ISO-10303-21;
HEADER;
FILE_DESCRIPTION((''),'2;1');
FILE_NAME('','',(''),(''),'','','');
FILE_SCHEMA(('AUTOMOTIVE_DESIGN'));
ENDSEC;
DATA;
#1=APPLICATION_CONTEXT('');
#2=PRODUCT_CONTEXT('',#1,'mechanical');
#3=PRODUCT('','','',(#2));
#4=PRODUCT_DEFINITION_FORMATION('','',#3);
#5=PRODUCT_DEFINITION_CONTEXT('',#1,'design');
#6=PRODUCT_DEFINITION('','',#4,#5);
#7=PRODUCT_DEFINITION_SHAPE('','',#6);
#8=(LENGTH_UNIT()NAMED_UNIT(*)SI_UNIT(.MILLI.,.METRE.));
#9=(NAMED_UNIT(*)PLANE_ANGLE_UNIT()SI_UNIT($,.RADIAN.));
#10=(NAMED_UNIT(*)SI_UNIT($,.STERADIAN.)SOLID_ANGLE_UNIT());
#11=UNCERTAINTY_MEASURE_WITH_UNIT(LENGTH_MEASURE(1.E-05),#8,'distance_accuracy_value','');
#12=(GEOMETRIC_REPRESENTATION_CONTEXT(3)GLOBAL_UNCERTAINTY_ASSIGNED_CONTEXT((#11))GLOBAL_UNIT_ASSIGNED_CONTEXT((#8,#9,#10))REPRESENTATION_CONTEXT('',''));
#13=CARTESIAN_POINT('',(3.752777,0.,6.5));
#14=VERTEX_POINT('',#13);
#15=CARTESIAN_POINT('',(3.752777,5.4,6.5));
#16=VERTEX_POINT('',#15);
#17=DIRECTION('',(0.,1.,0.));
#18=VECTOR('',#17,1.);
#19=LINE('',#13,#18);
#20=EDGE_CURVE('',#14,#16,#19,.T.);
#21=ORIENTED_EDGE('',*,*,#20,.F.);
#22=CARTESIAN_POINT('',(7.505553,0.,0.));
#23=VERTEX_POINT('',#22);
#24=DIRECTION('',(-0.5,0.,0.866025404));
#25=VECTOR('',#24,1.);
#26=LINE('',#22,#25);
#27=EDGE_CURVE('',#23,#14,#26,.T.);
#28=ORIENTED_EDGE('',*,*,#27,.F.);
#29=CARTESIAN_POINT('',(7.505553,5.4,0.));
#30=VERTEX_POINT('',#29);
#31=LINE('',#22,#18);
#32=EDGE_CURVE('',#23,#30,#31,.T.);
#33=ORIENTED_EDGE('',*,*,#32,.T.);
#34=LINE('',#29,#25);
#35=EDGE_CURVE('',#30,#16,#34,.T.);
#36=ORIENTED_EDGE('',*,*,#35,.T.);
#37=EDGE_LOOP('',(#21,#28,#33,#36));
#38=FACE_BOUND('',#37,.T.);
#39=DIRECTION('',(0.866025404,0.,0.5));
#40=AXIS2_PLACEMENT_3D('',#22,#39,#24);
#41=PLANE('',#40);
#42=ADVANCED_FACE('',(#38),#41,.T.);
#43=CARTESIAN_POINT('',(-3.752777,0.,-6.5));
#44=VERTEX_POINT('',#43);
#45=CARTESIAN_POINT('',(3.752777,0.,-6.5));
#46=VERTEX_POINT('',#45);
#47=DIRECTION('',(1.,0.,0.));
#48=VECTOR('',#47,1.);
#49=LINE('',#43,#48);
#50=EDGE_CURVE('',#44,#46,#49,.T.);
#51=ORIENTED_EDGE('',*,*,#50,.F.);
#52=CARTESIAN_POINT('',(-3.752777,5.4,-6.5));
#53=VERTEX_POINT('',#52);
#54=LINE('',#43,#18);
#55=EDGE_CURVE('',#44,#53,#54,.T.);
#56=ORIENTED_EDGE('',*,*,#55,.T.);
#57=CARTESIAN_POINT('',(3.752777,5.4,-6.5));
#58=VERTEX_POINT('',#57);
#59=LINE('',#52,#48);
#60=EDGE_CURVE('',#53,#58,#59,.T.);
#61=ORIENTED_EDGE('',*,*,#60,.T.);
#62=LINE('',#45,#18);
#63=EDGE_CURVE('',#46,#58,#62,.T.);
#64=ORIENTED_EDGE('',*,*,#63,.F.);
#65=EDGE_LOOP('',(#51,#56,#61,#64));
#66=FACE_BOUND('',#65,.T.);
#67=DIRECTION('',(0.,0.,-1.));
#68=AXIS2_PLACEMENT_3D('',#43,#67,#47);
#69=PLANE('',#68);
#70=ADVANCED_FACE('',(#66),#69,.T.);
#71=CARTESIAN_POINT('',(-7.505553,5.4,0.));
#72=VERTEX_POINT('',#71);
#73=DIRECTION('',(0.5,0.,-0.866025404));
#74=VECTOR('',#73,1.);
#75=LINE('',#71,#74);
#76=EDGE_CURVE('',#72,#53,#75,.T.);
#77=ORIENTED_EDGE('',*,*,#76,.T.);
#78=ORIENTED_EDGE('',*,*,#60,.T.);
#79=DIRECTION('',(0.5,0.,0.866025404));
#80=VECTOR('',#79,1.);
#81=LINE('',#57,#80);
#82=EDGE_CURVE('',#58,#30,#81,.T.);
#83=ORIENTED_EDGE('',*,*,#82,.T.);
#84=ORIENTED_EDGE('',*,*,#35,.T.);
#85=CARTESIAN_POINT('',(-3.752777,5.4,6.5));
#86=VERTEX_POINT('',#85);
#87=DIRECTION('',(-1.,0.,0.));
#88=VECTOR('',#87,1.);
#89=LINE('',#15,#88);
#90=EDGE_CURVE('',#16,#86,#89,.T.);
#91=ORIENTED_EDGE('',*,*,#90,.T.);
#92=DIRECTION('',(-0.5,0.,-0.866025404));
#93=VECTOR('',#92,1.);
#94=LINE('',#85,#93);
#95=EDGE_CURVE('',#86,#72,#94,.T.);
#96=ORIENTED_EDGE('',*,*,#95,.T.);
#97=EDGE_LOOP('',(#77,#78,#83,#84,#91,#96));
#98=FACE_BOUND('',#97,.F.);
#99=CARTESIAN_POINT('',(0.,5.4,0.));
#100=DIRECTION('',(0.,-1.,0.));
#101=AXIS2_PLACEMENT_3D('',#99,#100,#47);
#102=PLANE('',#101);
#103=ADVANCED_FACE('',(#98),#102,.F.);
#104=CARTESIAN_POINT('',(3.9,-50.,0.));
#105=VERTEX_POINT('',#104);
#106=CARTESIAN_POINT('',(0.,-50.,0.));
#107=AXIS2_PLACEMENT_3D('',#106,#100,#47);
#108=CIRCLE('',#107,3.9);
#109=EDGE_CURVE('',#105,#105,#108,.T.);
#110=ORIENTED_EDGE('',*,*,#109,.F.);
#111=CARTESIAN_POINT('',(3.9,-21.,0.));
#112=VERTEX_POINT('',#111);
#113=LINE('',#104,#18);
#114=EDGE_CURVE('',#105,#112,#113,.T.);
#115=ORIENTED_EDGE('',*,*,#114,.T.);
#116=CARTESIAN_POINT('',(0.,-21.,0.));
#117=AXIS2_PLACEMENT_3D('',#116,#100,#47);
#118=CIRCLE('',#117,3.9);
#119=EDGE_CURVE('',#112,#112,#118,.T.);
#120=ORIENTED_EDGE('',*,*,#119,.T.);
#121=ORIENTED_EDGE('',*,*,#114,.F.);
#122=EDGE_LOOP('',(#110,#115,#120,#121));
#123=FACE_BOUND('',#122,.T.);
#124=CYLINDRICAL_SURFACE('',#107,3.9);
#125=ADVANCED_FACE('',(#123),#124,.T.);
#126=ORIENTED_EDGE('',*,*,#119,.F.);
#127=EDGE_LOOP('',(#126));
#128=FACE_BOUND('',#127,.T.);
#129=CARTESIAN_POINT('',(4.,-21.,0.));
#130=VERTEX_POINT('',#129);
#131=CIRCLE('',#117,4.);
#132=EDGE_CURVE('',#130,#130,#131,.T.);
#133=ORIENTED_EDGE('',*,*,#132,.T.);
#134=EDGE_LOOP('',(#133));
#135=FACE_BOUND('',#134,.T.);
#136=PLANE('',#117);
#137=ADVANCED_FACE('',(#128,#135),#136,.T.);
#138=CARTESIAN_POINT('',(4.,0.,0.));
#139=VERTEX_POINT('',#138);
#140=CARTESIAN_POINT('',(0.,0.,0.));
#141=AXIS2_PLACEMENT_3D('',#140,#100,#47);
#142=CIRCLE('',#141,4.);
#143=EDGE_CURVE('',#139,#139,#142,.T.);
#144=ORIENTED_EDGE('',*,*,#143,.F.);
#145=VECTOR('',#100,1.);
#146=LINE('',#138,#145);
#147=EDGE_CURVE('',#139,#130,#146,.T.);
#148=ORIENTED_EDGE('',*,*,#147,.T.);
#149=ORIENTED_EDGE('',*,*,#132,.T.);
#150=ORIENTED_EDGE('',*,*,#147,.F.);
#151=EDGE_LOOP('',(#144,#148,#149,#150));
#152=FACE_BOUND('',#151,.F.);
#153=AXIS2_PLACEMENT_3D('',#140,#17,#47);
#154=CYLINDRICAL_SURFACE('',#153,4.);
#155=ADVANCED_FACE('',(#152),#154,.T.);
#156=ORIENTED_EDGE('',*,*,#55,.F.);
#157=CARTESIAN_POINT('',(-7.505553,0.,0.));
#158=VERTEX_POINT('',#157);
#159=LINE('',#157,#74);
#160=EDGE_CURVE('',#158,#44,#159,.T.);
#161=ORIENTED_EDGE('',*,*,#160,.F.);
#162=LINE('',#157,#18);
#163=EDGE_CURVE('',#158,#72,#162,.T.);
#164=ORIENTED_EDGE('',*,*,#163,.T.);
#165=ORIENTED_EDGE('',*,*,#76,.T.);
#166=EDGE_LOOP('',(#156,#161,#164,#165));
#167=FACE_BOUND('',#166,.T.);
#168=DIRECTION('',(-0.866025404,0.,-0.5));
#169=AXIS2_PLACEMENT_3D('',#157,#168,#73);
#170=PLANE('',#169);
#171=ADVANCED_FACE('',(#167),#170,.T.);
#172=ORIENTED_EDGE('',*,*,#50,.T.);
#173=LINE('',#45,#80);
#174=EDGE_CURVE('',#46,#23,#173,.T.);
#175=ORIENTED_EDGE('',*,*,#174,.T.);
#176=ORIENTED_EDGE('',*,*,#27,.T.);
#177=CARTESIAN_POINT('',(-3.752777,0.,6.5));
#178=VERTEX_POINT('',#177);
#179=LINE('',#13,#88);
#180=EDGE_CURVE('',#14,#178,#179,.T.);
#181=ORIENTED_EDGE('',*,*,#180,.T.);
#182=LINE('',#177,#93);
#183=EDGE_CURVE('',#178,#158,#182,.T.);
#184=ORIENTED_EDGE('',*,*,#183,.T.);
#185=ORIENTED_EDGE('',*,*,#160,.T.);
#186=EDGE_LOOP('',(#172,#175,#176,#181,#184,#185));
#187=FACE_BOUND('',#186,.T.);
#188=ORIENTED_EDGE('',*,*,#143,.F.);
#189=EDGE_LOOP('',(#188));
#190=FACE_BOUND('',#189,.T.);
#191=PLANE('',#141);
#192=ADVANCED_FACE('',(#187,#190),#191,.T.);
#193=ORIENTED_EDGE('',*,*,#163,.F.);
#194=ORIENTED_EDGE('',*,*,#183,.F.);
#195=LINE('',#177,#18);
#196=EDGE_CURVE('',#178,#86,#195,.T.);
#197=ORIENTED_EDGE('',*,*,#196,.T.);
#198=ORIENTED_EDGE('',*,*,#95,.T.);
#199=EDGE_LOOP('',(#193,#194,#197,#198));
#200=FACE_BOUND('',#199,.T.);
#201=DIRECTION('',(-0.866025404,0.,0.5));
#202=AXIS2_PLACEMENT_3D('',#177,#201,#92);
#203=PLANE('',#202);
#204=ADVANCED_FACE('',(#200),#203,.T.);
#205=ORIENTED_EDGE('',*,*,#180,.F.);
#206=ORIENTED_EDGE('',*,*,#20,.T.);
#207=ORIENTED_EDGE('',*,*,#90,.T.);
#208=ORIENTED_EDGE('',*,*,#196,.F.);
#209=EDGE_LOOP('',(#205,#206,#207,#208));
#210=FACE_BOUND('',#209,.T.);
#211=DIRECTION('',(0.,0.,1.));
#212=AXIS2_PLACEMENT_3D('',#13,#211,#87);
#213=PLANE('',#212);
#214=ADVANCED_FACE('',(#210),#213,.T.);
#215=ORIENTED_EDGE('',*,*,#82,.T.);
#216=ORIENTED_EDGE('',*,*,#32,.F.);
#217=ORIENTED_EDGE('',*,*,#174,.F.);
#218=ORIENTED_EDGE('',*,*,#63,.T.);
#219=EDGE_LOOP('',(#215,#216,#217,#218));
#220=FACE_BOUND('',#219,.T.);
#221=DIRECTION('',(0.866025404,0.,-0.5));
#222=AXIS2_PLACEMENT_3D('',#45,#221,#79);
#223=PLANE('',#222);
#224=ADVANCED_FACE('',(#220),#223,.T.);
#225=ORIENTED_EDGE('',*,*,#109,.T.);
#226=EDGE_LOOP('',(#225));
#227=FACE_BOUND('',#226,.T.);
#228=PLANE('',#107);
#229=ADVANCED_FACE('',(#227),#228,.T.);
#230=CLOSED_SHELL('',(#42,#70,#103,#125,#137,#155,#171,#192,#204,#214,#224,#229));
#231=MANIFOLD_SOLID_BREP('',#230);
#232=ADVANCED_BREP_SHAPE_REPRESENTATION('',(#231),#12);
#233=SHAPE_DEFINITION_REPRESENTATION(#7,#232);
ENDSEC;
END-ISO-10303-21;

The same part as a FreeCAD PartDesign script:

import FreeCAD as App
import Part
import Sketcher
Q = App.Units.Quantity

doc = App.newDocument("Part")
body = doc.addObject("PartDesign::Body", "Body")

sketch1 = doc.addObject("Sketcher::SketchObject", "Sketch")
body.addObject(sketch1)
sketch1.AttachmentSupport = (doc.XZ_Plane, [""])
sketch1.MapMode = "FlatFace"
sketch1.addGeometry(Part.Circle(App.Vector(0, 0, 0), App.Vector(0, 0, 1), 4), False)
sketch1.addConstraint(Sketcher.Constraint("Coincident", 0, 3, -1, 1))
sketch1.addConstraint(Sketcher.Constraint("Diameter", 0, 8.0))
pad1 = doc.addObject("PartDesign::Pad", "Pad")
body.addObject(pad1)
pad1.Profile = sketch1
pad1.Length = 50

sketch2 = doc.addObject("Sketcher::SketchObject", "Sketch001")
body.addObject(sketch2)
sketch2.AttachmentSupport = (doc.XZ_Plane, [""])
sketch2.MapMode = "FlatFace"
sketch2.addGeometry(Part.LineSegment(App.Vector(3.752777, 6.5, 0), App.Vector(-3.752777, 6.5, 0)), False)
sketch2.addGeometry(Part.LineSegment(App.Vector(-3.752777, 6.5, 0), App.Vector(-7.505554, 0, 0)), False)
sketch2.addGeometry(Part.LineSegment(App.Vector(-7.505554, 0, 0), App.Vector(-3.752777, -6.5, 0)), False)
sketch2.addGeometry(Part.LineSegment(App.Vector(-3.752777, -6.5, 0), App.Vector(3.752777, -6.5, 0)), False)
sketch2.addGeometry(Part.LineSegment(App.Vector(3.752777, -6.5, 0), App.Vector(7.505554, 0, 0)), False)
sketch2.addGeometry(Part.LineSegment(App.Vector(7.505554, 0, 0), App.Vector(3.752777, 6.5, 0)), False)
sketch2.addConstraint(Sketcher.Constraint("Coincident", 0, 2, 1, 1))
sketch2.addConstraint(Sketcher.Constraint("Coincident", 1, 2, 2, 1))
sketch2.addConstraint(Sketcher.Constraint("Coincident", 2, 2, 3, 1))
sketch2.addConstraint(Sketcher.Constraint("Coincident", 3, 2, 4, 1))
sketch2.addConstraint(Sketcher.Constraint("Coincident", 4, 2, 5, 1))
sketch2.addConstraint(Sketcher.Constraint("Coincident", 5, 2, 0, 1))
sketch2.addConstraint(Sketcher.Constraint("Horizontal", 0))
sketch2.addConstraint(Sketcher.Constraint("Horizontal", 3))
sketch2.addConstraint(Sketcher.Constraint("Symmetric", 0, 2, 3, 2, -1, 1))
sketch2.addConstraint(Sketcher.Constraint("Symmetric", 1, 2, 4, 2, -1, 1))
sketch2.addConstraint(Sketcher.Constraint("PointOnObject", 1, 2, -1))
sketch2.addConstraint(Sketcher.Constraint("Parallel", 2, 5))
sketch2.addConstraint(Sketcher.Constraint("Vertical", 0, 2, 2, 2))
sketch2.addConstraint(Sketcher.Constraint("Angle", 1, Q("-120 deg")))
sketch2.addConstraint(Sketcher.Constraint("DistanceY", 2, 2, 0, 2, 13.0))
sketch2.addConstraint(Sketcher.Constraint("DistanceX", 0, 2, 0, 1, 7.505554))
pad2 = doc.addObject("PartDesign::Pad", "Pad001")
body.addObject(pad2)
pad2.Profile = sketch2
pad2.Length = 5.4
pad2.Reversed = True

sketch3 = doc.addObject("Sketcher::SketchObject", "Sketch002")
body.addObject(sketch3)
sketch3.AttachmentSupport = (doc.XZ_Plane, [""])
sketch3.MapMode = "FlatFace"
sketch3.AttachmentOffset = App.Placement(App.Vector(0, 0, 50), App.Rotation())
sketch3.addGeometry(Part.Circle(App.Vector(0, 0, 0), App.Vector(0, 0, 1), 4), False)
sketch3.addGeometry(Part.Circle(App.Vector(0, 0, 0), App.Vector(0, 0, 1), 3.9), False)
sketch3.addConstraint(Sketcher.Constraint("Coincident", 0, 3, -1, 1))
sketch3.addConstraint(Sketcher.Constraint("Coincident", 1, 3, -1, 1))
sketch3.addConstraint(Sketcher.Constraint("Diameter", 0, 8.0))
sketch3.addConstraint(Sketcher.Constraint("Diameter", 1, 7.8))
pocket1 = doc.addObject("PartDesign::Pocket", "Pocket")
body.addObject(pocket1)
pocket1.Profile = sketch3
pocket1.Length = 29

doc.recompute()
